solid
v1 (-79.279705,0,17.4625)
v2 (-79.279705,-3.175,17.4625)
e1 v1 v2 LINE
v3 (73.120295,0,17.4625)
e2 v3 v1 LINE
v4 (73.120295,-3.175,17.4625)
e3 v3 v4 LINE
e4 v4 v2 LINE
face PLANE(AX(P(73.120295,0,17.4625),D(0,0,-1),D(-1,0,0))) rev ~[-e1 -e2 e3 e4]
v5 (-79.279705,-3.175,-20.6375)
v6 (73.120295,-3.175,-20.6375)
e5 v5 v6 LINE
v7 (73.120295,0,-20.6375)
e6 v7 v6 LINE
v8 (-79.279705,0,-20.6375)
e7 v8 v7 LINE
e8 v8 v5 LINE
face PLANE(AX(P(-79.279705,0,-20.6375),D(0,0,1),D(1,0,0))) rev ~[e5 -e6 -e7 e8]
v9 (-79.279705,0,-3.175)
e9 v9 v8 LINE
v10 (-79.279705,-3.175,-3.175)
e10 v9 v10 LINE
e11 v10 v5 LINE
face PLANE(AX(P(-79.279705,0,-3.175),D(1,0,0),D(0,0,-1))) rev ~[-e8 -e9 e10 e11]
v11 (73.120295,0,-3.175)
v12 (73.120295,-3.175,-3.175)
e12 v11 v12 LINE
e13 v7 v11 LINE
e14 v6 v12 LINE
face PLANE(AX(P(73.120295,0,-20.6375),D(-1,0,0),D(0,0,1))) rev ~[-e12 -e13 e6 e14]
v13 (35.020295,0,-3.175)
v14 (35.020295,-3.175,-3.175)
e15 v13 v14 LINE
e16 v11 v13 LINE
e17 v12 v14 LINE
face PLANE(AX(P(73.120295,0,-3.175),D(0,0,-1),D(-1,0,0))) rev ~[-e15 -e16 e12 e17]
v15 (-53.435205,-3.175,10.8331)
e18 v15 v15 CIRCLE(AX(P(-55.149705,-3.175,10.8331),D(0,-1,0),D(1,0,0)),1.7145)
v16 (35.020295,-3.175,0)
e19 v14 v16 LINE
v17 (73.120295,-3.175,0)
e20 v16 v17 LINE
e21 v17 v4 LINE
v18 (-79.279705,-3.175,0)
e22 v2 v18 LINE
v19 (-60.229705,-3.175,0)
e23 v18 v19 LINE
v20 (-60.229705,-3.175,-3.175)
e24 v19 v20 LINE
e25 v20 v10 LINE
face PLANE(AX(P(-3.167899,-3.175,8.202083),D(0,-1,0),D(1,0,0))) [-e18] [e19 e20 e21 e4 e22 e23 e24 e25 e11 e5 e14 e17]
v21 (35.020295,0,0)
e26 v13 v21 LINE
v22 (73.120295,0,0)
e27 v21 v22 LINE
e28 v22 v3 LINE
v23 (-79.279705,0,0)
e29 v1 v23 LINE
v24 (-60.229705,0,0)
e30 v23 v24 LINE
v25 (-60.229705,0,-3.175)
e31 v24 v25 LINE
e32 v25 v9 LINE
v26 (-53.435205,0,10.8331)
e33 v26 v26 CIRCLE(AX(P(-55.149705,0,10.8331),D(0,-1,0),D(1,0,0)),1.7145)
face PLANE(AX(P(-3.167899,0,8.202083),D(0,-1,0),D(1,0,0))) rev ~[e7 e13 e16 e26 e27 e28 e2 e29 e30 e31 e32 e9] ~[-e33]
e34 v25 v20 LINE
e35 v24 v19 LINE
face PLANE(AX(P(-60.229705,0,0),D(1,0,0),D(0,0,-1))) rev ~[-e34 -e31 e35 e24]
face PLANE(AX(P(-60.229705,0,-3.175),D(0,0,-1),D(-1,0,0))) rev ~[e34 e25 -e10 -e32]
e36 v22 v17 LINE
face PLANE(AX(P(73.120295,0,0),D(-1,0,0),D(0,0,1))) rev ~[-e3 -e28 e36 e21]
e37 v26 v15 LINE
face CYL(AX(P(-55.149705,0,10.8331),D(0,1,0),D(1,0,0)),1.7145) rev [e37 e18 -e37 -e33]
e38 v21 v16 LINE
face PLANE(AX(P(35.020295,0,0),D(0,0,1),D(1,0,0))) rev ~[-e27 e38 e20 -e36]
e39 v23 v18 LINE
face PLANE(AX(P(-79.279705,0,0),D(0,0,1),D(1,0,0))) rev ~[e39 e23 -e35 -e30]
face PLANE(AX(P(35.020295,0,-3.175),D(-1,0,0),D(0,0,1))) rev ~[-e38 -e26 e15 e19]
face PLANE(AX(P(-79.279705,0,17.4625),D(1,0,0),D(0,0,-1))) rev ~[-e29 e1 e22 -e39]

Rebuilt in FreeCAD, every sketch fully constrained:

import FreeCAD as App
import Part
import Sketcher

V = App.Vector
Q = App.Units.Quantity


def add_polygon(sketch, points):
    """Adds a closed chain of lines whose ends are joined by coincident constraints."""
    first, n = sketch.GeometryCount, len(points)
    for a, b in zip(points, points[1:] + points[:1]):
        sketch.addGeometry(Part.LineSegment(App.Vector(*a, 0), App.Vector(*b, 0)), False)
    for i in range(n):
        sketch.addConstraint(Sketcher.Constraint("Coincident", first + i, 2, first + (i + 1) % n, 1))

doc = App.newDocument("Part")
params = doc.addObject("Spreadsheet::Sheet", "Params")
for row, (alias, value) in enumerate([
    ("sketch1_width", "6 in"),
    ("sketch1_diameter", "0.135 in"),
    ("sketch1_width2", "1.5 in"),
    ("sketch1_width3", "0.75 in"),
    ("sketch1_height", "0.6875 in"),
    ("pad1_length", "0.125 in"),
], start=1):
    params.set(f"A{row}", alias)
    params.set(f"B{row}", "=" + value)
    params.setAlias(f"B{row}", alias)

body = doc.addObject("PartDesign::Body", "Body")

# Sketch on XZ plane
sketch1 = body.newObject("Sketcher::SketchObject", "Sketch")
sketch1.AttachmentSupport = (doc.getObject("XZ_Plane"), [""])
sketch1.MapMode = "FlatFace"
add_polygon(sketch1, [(73.120295, 17.4625), (-79.279705, 17.4625), (-79.279705, 0), (-60.229705, 0), (-60.229705, -3.175), (-79.279705, -3.175), (-79.279705, -20.6375), (73.120295, -20.6375), (73.120295, -3.175), (35.020295, -3.175), (35.020295, 0), (73.120295, 0)])  # lines 0-11
sketch1.addGeometry(Part.Circle(V(-55.149705, 10.8331, 0), V(0, 0, 1), 1.7145), False)  # 12
sketch1.addConstraint(Sketcher.Constraint("Horizontal", 0))
sketch1.addConstraint(Sketcher.Constraint("Vertical", 1))
sketch1.addConstraint(Sketcher.Constraint("Horizontal", 2))
sketch1.addConstraint(Sketcher.Constraint("Vertical", 3))
sketch1.addConstraint(Sketcher.Constraint("Horizontal", 4))
sketch1.addConstraint(Sketcher.Constraint("Vertical", 5))
sketch1.addConstraint(Sketcher.Constraint("Horizontal", 6))
sketch1.addConstraint(Sketcher.Constraint("Vertical", 7))
sketch1.addConstraint(Sketcher.Constraint("Horizontal", 8))
sketch1.addConstraint(Sketcher.Constraint("Vertical", 9))
sketch1.addConstraint(Sketcher.Constraint("Horizontal", 10))
sketch1.addConstraint(Sketcher.Constraint("Vertical", 11))
sketch1.addConstraint(Sketcher.Constraint("PointOnObject", 1, 2, -1))
sketch1.addConstraint(Sketcher.Constraint("PointOnObject", 9, 2, -1))
sketch1.addConstraint(Sketcher.Constraint("Horizontal", 4, 2, 7, 2))
sketch1.addConstraint(Sketcher.Constraint("Vertical", 1, 2, 4, 2))
sketch1.addConstraint(Sketcher.Constraint("Vertical", 7, 2, 10, 2))
sketch1.addConstraint(Sketcher.Constraint("Equal", 1, 5))
sketch1.addConstraint(Sketcher.Constraint("DistanceX", 0, 2, 0, 1, Q("6 in")))
sketch1.addConstraint(Sketcher.Constraint("Diameter", 12, Q("0.135 in")))
sketch1.addConstraint(Sketcher.Constraint("DistanceX", 8, 2, 8, 1, Q("1.5 in")))
sketch1.addConstraint(Sketcher.Constraint("DistanceX", 2, 1, 2, 2, Q("0.75 in")))
sketch1.addConstraint(Sketcher.Constraint("DistanceX", 2, 2, 12, 3, Q("0.2 in")))
sketch1.addConstraint(Sketcher.Constraint("DistanceY", 5, 2, 0, 2, Q("1.5 in")))
sketch1.addConstraint(Sketcher.Constraint("DistanceY", 1, 2, 1, 1, Q("0.6875 in")))
sketch1.addConstraint(Sketcher.Constraint("DistanceY", 12, 3, 0, 2, Q("0.261 in")))
sketch1.addConstraint(Sketcher.Constraint("DistanceX", 12, 3, -1, 1, 55.149705))
sketch1.setExpression("Constraints[30]", "Params.sketch1_width")
sketch1.setExpression("Constraints[31]", "Params.sketch1_diameter")
sketch1.setExpression("Constraints[32]", "Params.sketch1_width2")
sketch1.setExpression("Constraints[33]", "Params.sketch1_width3")
sketch1.setExpression("Constraints[36]", "Params.sketch1_height")
pad1 = body.newObject("PartDesign::Pad", "Pad")
pad1.Profile = sketch1
pad1.setExpression("Length", "Params.pad1_length")

doc.recompute()
